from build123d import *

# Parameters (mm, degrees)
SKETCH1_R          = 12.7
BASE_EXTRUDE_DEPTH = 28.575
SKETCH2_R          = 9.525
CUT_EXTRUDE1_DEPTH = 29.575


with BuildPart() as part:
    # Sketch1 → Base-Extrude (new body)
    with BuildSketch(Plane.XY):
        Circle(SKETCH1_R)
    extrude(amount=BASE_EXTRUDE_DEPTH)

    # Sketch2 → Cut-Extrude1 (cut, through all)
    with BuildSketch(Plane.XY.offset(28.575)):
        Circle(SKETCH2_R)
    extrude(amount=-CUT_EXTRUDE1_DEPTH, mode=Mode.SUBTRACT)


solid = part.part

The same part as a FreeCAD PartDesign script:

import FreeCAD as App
import Part
import Sketcher

V = App.Vector
Q = App.Units.Quantity

doc = App.newDocument("Part")
params = doc.addObject("Spreadsheet::Sheet", "Params")
for row, (alias, value) in enumerate([
    ("sketch1_diameter", "1 in"),
    ("pad1_length", "1.125 in"),
    ("sketch2_diameter", "0.75 in"),
], start=1):
    params.set(f"A{row}", alias)
    params.set(f"B{row}", "=" + value)
    params.setAlias(f"B{row}", alias)

body = doc.addObject("PartDesign::Body", "Body")

# Sketch on XY plane
sketch1 = body.newObject("Sketcher::SketchObject", "Sketch")
sketch1.AttachmentSupport = (doc.getObject("XY_Plane"), [""])
sketch1.MapMode = "FlatFace"
sketch1.addGeometry(Part.Circle(V(0, 0, 0), V(0, 0, 1), 13), False)
sketch1.addConstraint(Sketcher.Constraint("Coincident", 0, 3, -1, 1))
sketch1.addConstraint(Sketcher.Constraint("Diameter", 0, Q("1 in")))
sketch1.setExpression("Constraints[1]", "Params.sketch1_diameter")
pad1 = body.newObject("PartDesign::Pad", "Pad")
pad1.Profile = sketch1
pad1.setExpression("Length", "Params.pad1_length")

# Sketch on XY plane
sketch2 = body.newObject("Sketcher::SketchObject", "Sketch001")
sketch2.AttachmentSupport = (doc.getObject("XY_Plane"), [""])
sketch2.MapMode = "FlatFace"
sketch2.AttachmentOffset = App.Placement(V(0, 0, 1.125 * 25.4), App.Rotation())
sketch2.addGeometry(Part.Circle(V(0, 0, 0), V(0, 0, 1), 10), False)
sketch2.addConstraint(Sketcher.Constraint("Coincident", 0, 3, -1, 1))
sketch2.addConstraint(Sketcher.Constraint("Diameter", 0, Q("0.75 in")))
sketch2.setExpression("Constraints[1]", "Params.sketch2_diameter")
pocket1 = body.newObject("PartDesign::Pocket", "Pocket")
pocket1.Profile = sketch2
pocket1.Type = "ThroughAll"

doc.recompute()
